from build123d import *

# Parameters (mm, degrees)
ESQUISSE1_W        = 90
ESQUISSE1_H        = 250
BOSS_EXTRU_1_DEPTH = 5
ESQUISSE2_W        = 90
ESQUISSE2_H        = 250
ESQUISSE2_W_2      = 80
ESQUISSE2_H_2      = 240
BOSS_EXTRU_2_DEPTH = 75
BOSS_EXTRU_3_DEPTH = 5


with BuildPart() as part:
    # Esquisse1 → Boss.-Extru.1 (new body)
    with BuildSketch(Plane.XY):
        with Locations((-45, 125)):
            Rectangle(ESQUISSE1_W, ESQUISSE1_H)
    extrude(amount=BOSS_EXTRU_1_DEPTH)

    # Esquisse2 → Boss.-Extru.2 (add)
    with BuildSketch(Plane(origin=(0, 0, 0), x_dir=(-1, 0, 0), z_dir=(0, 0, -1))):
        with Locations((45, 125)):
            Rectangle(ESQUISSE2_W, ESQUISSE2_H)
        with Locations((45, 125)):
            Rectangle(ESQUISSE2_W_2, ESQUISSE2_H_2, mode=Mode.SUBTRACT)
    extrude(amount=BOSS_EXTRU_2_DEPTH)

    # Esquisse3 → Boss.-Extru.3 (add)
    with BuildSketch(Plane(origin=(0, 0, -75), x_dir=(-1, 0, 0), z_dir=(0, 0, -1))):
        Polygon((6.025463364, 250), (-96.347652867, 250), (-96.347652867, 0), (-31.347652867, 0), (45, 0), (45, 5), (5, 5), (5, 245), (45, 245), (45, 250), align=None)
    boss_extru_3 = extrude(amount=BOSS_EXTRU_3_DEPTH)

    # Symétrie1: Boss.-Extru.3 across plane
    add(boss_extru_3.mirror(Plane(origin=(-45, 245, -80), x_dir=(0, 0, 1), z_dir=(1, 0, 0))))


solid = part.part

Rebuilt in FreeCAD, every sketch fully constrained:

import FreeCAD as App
import Part
import Sketcher

doc = App.newDocument("Part")
body = doc.addObject("PartDesign::Body", "Body")

sketch1 = body.newObject("Sketcher::SketchObject", "Sketch")
sketch1.AttachmentSupport = (doc.getObject("XY_Plane"), [""])
sketch1.MapMode = "FlatFace"
sketch1.addGeometry([
    Part.LineSegment(App.Vector(-90, 250, 0), App.Vector(-90, 0, 0)),
    Part.LineSegment(App.Vector(-90, 0, 0), App.Vector(0, 0, 0)),
    Part.LineSegment(App.Vector(0, 0, 0), App.Vector(0, 250, 0)),
    Part.LineSegment(App.Vector(0, 250, 0), App.Vector(-90, 250, 0)),
], False)
sketch1.addConstraint([
    Sketcher.Constraint("Coincident", 0, 2, 1, 1),
    Sketcher.Constraint("Coincident", 1, 2, 2, 1),
    Sketcher.Constraint("Coincident", 2, 2, 3, 1),
    Sketcher.Constraint("Coincident", 3, 2, 0, 1),
    Sketcher.Constraint("Vertical", 0),
    Sketcher.Constraint("Horizontal", 1),
    Sketcher.Constraint("Vertical", 2),
    Sketcher.Constraint("Horizontal", 3),
    Sketcher.Constraint("Coincident", 1, 2, -1, 1),
    Sketcher.Constraint("DistanceX", 1, 1, 1, 2, 90.0),
    Sketcher.Constraint("DistanceY", 0, 2, 0, 1, 250.0),
])
pad1 = body.newObject("PartDesign::Pad", "Pad")
pad1.Profile = sketch1
pad1.Length = 5

sketch2 = body.newObject("Sketcher::SketchObject", "Sketch001")
sketch2.AttachmentSupport = (doc.getObject("XY_Plane"), [""])
sketch2.MapMode = "FlatFace"
sketch2.addGeometry([
    Part.LineSegment(App.Vector(0, 250, 0), App.Vector(0, 0, 0)),
    Part.LineSegment(App.Vector(0, 0, 0), App.Vector(-90, 0, 0)),
    Part.LineSegment(App.Vector(-90, 0, 0), App.Vector(-90, 250, 0)),
    Part.LineSegment(App.Vector(-90, 250, 0), App.Vector(0, 250, 0)),
    Part.LineSegment(App.Vector(-85, 5, 0), App.Vector(-5, 5, 0)),
    Part.LineSegment(App.Vector(-5, 5, 0), App.Vector(-5, 245, 0)),
    Part.LineSegment(App.Vector(-5, 245, 0), App.Vector(-85, 245, 0)),
    Part.LineSegment(App.Vector(-85, 245, 0), App.Vector(-85, 5, 0)),
], False)
sketch2.addConstraint([
    Sketcher.Constraint("Coincident", 0, 2, 1, 1),
    Sketcher.Constraint("Coincident", 1, 2, 2, 1),
    Sketcher.Constraint("Coincident", 2, 2, 3, 1),
    Sketcher.Constraint("Coincident", 3, 2, 0, 1),
    Sketcher.Constraint("Coincident", 4, 2, 5, 1),
    Sketcher.Constraint("Coincident", 5, 2, 6, 1),
    Sketcher.Constraint("Coincident", 6, 2, 7, 1),
    Sketcher.Constraint("Coincident", 7, 2, 4, 1),
    Sketcher.Constraint("Vertical", 0),
    Sketcher.Constraint("Horizontal", 1),
    Sketcher.Constraint("Vertical", 2),
    Sketcher.Constraint("Horizontal", 3),
    Sketcher.Constraint("Horizontal", 4),
    Sketcher.Constraint("Vertical", 5),
    Sketcher.Constraint("Horizontal", 6),
    Sketcher.Constraint("Vertical", 7),
    Sketcher.Constraint("Coincident", 0, 2, -1, 1),
    Sketcher.Constraint("DistanceX", 1, 2, 1, 1, 90.0),
    Sketcher.Constraint("DistanceX", 4, 1, 4, 2, 80.0),
    Sketcher.Constraint("DistanceY", 0, 2, 0, 1, 250.0),
    Sketcher.Constraint("DistanceY", 5, 1, 5, 2, 240.0),
    Sketcher.Constraint("DistanceX", 4, 2, -1, 1, 5.0),
    Sketcher.Constraint("DistanceY", -1, 1, 4, 2, 5.0),
])
pad2 = body.newObject("PartDesign::Pad", "Pad001")
pad2.Profile = sketch2
pad2.Length = 75
pad2.Reversed = True

sketch3 = body.newObject("Sketcher::SketchObject", "Sketch002")
sketch3.AttachmentSupport = (doc.getObject("XY_Plane"), [""])
sketch3.MapMode = "FlatFace"
sketch3.AttachmentOffset = App.Placement(App.Vector(0, 0, -75), App.Rotation())
sketch3.addGeometry([
    Part.LineSegment(App.Vector(96.347653, 250, 0), App.Vector(96.347653, 0, 0)),
    Part.LineSegment(App.Vector(96.347653, 0, 0), App.Vector(-45, 0, 0)),
    Part.LineSegment(App.Vector(-45, 0, 0), App.Vector(-45, 5, 0)),
    Part.LineSegment(App.Vector(-45, 5, 0), App.Vector(-5, 5, 0)),
    Part.LineSegment(App.Vector(-5, 5, 0), App.Vector(-5, 245, 0)),
    Part.LineSegment(App.Vector(-5, 245, 0), App.Vector(-45, 245, 0)),
    Part.LineSegment(App.Vector(-45, 245, 0), App.Vector(-45, 250, 0)),
    Part.LineSegment(App.Vector(-45, 250, 0), App.Vector(96.347653, 250, 0)),
], False)
sketch3.addConstraint([
    Sketcher.Constraint("Coincident", 0, 2, 1, 1),
    Sketcher.Constraint("Coincident", 1, 2, 2, 1),
    Sketcher.Constraint("Coincident", 2, 2, 3, 1),
    Sketcher.Constraint("Coincident", 3, 2, 4, 1),
    Sketcher.Constraint("Coincident", 4, 2, 5, 1),
    Sketcher.Constraint("Coincident", 5, 2, 6, 1),
    Sketcher.Constraint("Coincident", 6, 2, 7, 1),
    Sketcher.Constraint("Coincident", 7, 2, 0, 1),
    Sketcher.Constraint("Vertical", 0),
    Sketcher.Constraint("Horizontal", 1),
    Sketcher.Constraint("Vertical", 2),
    Sketcher.Constraint("Horizontal", 3),
    Sketcher.Constraint("Vertical", 4),
    Sketcher.Constraint("Horizontal", 5),
    Sketcher.Constraint("Vertical", 6),
    Sketcher.Constraint("Horizontal", 7),
    Sketcher.Constraint("PointOnObject", 0, 2, -1),
    Sketcher.Constraint("Vertical", 2, 2, 5, 2),
    Sketcher.Constraint("Equal", 2, 6),
    Sketcher.Constraint("DistanceX", 3, 1, 3, 2, 40.0),
    Sketcher.Constraint("DistanceY", 0, 2, 0, 1, 250.0),
    Sketcher.Constraint("DistanceY", 2, 1, 2, 2, 5.0),
    Sketcher.Constraint("DistanceX", 1, 2, -1, 1, 45.0),
    Sketcher.Constraint("DistanceX", 1, 2, 1, 1, 141.347653),
])
pad3 = body.newObject("PartDesign::Pad", "Pad002")
pad3.Profile = sketch3
pad3.Length = 5
pad3.Reversed = True
doc.recompute()

datumplane = body.newObject("PartDesign::Plane", "DatumPlane")
datumplane.AttachmentSupport = (doc.getObject("YZ_Plane"), [""])
datumplane.MapMode = "FlatFace"
datumplane.AttachmentOffset = App.Placement(App.Vector(0, 0, -45), App.Rotation())
mirrored = body.newObject("PartDesign::Mirrored", "Mirrored")
mirrored.Originals = [pad3]
mirrored.MirrorPlane = (datumplane, [""])
body.Tip = mirrored

doc.recompute()
